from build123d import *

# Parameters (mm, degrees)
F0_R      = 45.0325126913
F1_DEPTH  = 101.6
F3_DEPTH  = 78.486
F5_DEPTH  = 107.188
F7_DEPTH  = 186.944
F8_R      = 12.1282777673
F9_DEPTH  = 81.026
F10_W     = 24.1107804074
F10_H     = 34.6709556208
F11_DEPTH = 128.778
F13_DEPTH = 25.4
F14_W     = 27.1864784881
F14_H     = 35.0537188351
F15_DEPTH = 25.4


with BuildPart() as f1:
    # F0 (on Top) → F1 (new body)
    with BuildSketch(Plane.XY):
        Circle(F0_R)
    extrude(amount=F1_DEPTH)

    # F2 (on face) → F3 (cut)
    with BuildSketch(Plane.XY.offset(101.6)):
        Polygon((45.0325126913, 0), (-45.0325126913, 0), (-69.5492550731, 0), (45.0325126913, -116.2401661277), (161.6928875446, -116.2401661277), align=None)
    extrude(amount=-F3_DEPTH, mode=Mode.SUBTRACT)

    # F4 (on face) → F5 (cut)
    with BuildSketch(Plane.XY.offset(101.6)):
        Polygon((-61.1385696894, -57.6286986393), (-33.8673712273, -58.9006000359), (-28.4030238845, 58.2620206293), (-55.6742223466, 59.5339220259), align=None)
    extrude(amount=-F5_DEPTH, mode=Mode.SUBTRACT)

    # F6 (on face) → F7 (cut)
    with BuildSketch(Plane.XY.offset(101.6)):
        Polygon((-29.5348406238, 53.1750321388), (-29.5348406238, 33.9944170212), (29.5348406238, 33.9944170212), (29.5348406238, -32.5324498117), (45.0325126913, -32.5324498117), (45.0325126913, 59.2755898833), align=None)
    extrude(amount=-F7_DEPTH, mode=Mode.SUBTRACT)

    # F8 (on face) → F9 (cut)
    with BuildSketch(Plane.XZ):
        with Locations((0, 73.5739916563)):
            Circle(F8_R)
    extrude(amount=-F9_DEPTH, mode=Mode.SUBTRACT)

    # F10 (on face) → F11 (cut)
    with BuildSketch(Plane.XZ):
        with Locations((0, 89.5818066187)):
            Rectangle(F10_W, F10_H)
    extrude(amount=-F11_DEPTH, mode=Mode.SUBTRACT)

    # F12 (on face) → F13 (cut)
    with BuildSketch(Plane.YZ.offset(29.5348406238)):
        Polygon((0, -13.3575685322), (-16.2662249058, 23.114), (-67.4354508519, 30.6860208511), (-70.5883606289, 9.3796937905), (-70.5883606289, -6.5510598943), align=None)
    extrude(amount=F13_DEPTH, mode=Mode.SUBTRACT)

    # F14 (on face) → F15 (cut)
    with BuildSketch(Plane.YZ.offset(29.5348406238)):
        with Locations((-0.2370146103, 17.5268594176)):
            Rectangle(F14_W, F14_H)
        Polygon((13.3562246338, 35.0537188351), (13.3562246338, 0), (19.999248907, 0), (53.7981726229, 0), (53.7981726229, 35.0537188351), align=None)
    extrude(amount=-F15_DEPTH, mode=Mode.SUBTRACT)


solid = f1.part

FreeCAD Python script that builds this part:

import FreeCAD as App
import Part
import Sketcher

V = App.Vector
Q = App.Units.Quantity


def add_polygon(sketch, points):
    """Adds a closed chain of lines whose ends are joined by coincident constraints."""
    first, n = sketch.GeometryCount, len(points)
    for a, b in zip(points, points[1:] + points[:1]):
        sketch.addGeometry(Part.LineSegment(App.Vector(*a, 0), App.Vector(*b, 0)), False)
    for i in range(n):
        sketch.addConstraint(Sketcher.Constraint("Coincident", first + i, 2, first + (i + 1) % n, 1))

doc = App.newDocument("Part")
body = doc.addObject("PartDesign::Body", "Body")

# Sketch on XY plane
sketch1 = doc.addObject("Sketcher::SketchObject", "Sketch")
body.addObject(sketch1)
sketch1.AttachmentSupport = (doc.XY_Plane, [""])
sketch1.MapMode = "FlatFace"
sketch1.addGeometry(Part.Circle(V(0, 0, 0), V(0, 0, 1), 45), False)
sketch1.addConstraint([
    Sketcher.Constraint("Coincident", 0, 3, -1, 1),
    Sketcher.Constraint("Diameter", 0, 90.065025),
])
pad1 = doc.addObject("PartDesign::Pad", "Pad")
body.addObject(pad1)
pad1.Profile = sketch1
pad1.Length = Q("4 in")

# Sketch on XY plane
sketch2 = doc.addObject("Sketcher::SketchObject", "Sketch001")
body.addObject(sketch2)
sketch2.AttachmentSupport = (doc.XY_Plane, [""])
sketch2.MapMode = "FlatFace"
sketch2.AttachmentOffset = App.Placement(V(0, 0, 4 * 25.4), App.Rotation())
add_polygon(sketch2, [(45, 0), (-70, 0), (45, -116), (162, -116)])  # lines 0-3
sketch2.addConstraint([
    Sketcher.Constraint("Horizontal", 0),
    Sketcher.Constraint("Horizontal", 2),
    Sketcher.Constraint("PointOnObject", 0, 2, -1),
    Sketcher.Constraint("Vertical", 1, 2, 3, 2),
    Sketcher.Constraint("Distance", 3, 164.68582),
    Sketcher.Constraint("DistanceX", 0, 2, 0, 1, 114.581768),
    Sketcher.Constraint("DistanceX", 2, 1, 2, 2, 116.660375),
    Sketcher.Constraint("DistanceX", 0, 2, -1, 1, 69.549255),
])
pocket1 = doc.addObject("PartDesign::Pocket", "Pocket")
body.addObject(pocket1)
pocket1.Profile = sketch2
pocket1.Length = Q("3.09 in")

# Sketch on XY plane
sketch3 = doc.addObject("Sketcher::SketchObject", "Sketch002")
body.addObject(sketch3)
sketch3.AttachmentSupport = (doc.XY_Plane, [""])
sketch3.MapMode = "FlatFace"
sketch3.AttachmentOffset = App.Placement(V(0, 0, 4 * 25.4), App.Rotation())
add_polygon(sketch3, [(-61, -58), (-34, -59), (-28, 58), (-56, 60)])  # lines 0-3
sketch3.addConstraint([
    Sketcher.Constraint("Perpendicular", 0, 1),
    Sketcher.Constraint("Perpendicular", 1, 2),
    Sketcher.Constraint("Perpendicular", 2, 3),
    Sketcher.Constraint("DistanceY", 0, 2, -1, 1, 58.9006),
    Sketcher.Constraint("DistanceY", 3, 2, -1, 1, 57.628699),
    Sketcher.Constraint("DistanceX", 2, 2, 1, 2, 27.271198),
    Sketcher.Constraint("DistanceX", 0, 2, -1, 1, 33.867371),
    Sketcher.Constraint("DistanceY", -1, 1, 1, 2, 58.262021),
])
pocket2 = doc.addObject("PartDesign::Pocket", "Pocket001")
body.addObject(pocket2)
pocket2.Profile = sketch3
pocket2.Length = Q("4.22 in")

# Sketch on XY plane
sketch4 = doc.addObject("Sketcher::SketchObject", "Sketch003")
body.addObject(sketch4)
sketch4.AttachmentSupport = (doc.XY_Plane, [""])
sketch4.MapMode = "FlatFace"
sketch4.AttachmentOffset = App.Placement(V(0, 0, 4 * 25.4), App.Rotation())
add_polygon(sketch4, [(-30, 53), (-30, 34), (30, 34), (30, -33), (45, -33), (45, 59)])  # lines 0-5
sketch4.addConstraint([
    Sketcher.Constraint("Vertical", 0),
    Sketcher.Constraint("Horizontal", 1),
    Sketcher.Constraint("Vertical", 2),
    Sketcher.Constraint("Horizontal", 3),
    Sketcher.Constraint("Vertical", 4),
    Sketcher.Constraint("DistanceX", 1, 1, 1, 2, 59.069681),
    Sketcher.Constraint("DistanceY", 4, 1, 4, 2, 91.80804),
    Sketcher.Constraint("Distance", 5, 74.816489),
    Sketcher.Constraint("DistanceX", 3, 1, 3, 2, 15.497672),
    Sketcher.Constraint("DistanceY", 0, 2, 0, 1, 19.180615),
    Sketcher.Constraint("DistanceX", 0, 2, -1, 1, 29.534841),
    Sketcher.Constraint("DistanceY", 2, 2, -1, 1, 32.53245),
])
pocket3 = doc.addObject("PartDesign::Pocket", "Pocket002")
body.addObject(pocket3)
pocket3.Profile = sketch4
pocket3.Length = Q("7.36 in")

# Sketch on XZ plane
sketch5 = doc.addObject("Sketcher::SketchObject", "Sketch004")
body.addObject(sketch5)
sketch5.AttachmentSupport = (doc.XZ_Plane, [""])
sketch5.MapMode = "FlatFace"
sketch5.addGeometry(Part.Circle(V(0, 74, 0), V(0, 0, 1), 12), False)
sketch5.addConstraint([
    Sketcher.Constraint("PointOnObject", 0, 3, -2),
    Sketcher.Constraint("Diameter", 0, 24.256556),
    Sketcher.Constraint("DistanceY", -1, 1, 0, 3, 73.573992),
])
pocket4 = doc.addObject("PartDesign::Pocket", "Pocket003")
body.addObject(pocket4)
pocket4.Profile = sketch5
pocket4.Length = Q("3.19 in")

# Sketch on XZ plane
sketch6 = doc.addObject("Sketcher::SketchObject", "Sketch005")
body.addObject(sketch6)
sketch6.AttachmentSupport = (doc.XZ_Plane, [""])
sketch6.MapMode = "FlatFace"
add_polygon(sketch6, [(-12, 107), (-12, 72), (12, 72), (12, 107)])  # lines 0-3
sketch6.addConstraint([
    Sketcher.Constraint("Vertical", 0),
    Sketcher.Constraint("Horizontal", 1),
    Sketcher.Constraint("Vertical", 2),
    Sketcher.Constraint("Horizontal", 3),
    Sketcher.Constraint("DistanceX", 1, 1, 1, 2, 24.11078),
    Sketcher.Constraint("DistanceY", 0, 2, 0, 1, 34.670956),
    Sketcher.Constraint("DistanceX", 0, 2, -1, 1, 12.05539),
    Sketcher.Constraint("DistanceY", -1, 1, 0, 2, 72.246329),
])
pocket5 = doc.addObject("PartDesign::Pocket", "Pocket004")
body.addObject(pocket5)
pocket5.Profile = sketch6
pocket5.Length = Q("5.07 in")

# Sketch on YZ plane
sketch7 = doc.addObject("Sketcher::SketchObject", "Sketch006")
body.addObject(sketch7)
sketch7.AttachmentSupport = (doc.YZ_Plane, [""])
sketch7.MapMode = "FlatFace"
sketch7.AttachmentOffset = App.Placement(V(0, 0, 29.534841), App.Rotation())
add_polygon(sketch7, [(0, -13), (-16, 23), (-67, 31), (-71, 9), (-71, -7)])  # lines 0-4
sketch7.addConstraint([
    Sketcher.Constraint("Vertical", 3),
    Sketcher.Constraint("PointOnObject", 4, 2, -2),
    Sketcher.Constraint("Perpendicular", 1, 2),
    Sketcher.Constraint("DistanceY", -1, 1, 0, 2, Q("0.91 in")),
    Sketcher.Constraint("Distance", 4, 70.915761),
    Sketcher.Constraint("DistanceY", 3, 2, 3, 1, 15.930754),
    Sketcher.Constraint("DistanceX", 1, 2, -1, 1, 67.435451),
    Sketcher.Constraint("DistanceY", -1, 1, 1, 2, 30.686021),
    Sketcher.Constraint("DistanceX", 2, 2, -1, 1, 70.588361),
    Sketcher.Constraint("DistanceY", 3, 2, -1, 1, 6.55106),
])
pocket6 = doc.addObject("PartDesign::Pocket", "Pocket005")
body.addObject(pocket6)
pocket6.Profile = sketch7
pocket6.Length = Q("1 in")
pocket6.Reversed = True

# Sketch on YZ plane
sketch8 = doc.addObject("Sketcher::SketchObject", "Sketch007")
body.addObject(sketch8)
sketch8.AttachmentSupport = (doc.YZ_Plane, [""])
sketch8.MapMode = "FlatFace"
sketch8.AttachmentOffset = App.Placement(V(0, 0, 29.534841), App.Rotation())
add_polygon(sketch8, [(-14, 35), (-14, 0), (13, 0), (54, 0), (54, 35)])  # lines 0-4
sketch8.addConstraint([
    Sketcher.Constraint("Vertical", 0),
    Sketcher.Constraint("Horizontal", 1),
    Sketcher.Constraint("Horizontal", 2),
    Sketcher.Constraint("Vertical", 3),
    Sketcher.Constraint("Horizontal", 4),
    Sketcher.Constraint("PointOnObject", 0, 2, -1),
    Sketcher.Constraint("DistanceX", 1, 1, 1, 2, 27.186478),
    Sketcher.Constraint("DistanceY", 0, 2, 0, 1, 35.053719),
    Sketcher.Constraint("DistanceX", 2, 1, 2, 2, 40.441948),
    Sketcher.Constraint("DistanceX", 0, 2, -1, 1, 13.830254),
])
pocket7 = doc.addObject("PartDesign::Pocket", "Pocket006")
body.addObject(pocket7)
pocket7.Profile = sketch8
pocket7.Length = Q("1 in")

doc.recompute()
